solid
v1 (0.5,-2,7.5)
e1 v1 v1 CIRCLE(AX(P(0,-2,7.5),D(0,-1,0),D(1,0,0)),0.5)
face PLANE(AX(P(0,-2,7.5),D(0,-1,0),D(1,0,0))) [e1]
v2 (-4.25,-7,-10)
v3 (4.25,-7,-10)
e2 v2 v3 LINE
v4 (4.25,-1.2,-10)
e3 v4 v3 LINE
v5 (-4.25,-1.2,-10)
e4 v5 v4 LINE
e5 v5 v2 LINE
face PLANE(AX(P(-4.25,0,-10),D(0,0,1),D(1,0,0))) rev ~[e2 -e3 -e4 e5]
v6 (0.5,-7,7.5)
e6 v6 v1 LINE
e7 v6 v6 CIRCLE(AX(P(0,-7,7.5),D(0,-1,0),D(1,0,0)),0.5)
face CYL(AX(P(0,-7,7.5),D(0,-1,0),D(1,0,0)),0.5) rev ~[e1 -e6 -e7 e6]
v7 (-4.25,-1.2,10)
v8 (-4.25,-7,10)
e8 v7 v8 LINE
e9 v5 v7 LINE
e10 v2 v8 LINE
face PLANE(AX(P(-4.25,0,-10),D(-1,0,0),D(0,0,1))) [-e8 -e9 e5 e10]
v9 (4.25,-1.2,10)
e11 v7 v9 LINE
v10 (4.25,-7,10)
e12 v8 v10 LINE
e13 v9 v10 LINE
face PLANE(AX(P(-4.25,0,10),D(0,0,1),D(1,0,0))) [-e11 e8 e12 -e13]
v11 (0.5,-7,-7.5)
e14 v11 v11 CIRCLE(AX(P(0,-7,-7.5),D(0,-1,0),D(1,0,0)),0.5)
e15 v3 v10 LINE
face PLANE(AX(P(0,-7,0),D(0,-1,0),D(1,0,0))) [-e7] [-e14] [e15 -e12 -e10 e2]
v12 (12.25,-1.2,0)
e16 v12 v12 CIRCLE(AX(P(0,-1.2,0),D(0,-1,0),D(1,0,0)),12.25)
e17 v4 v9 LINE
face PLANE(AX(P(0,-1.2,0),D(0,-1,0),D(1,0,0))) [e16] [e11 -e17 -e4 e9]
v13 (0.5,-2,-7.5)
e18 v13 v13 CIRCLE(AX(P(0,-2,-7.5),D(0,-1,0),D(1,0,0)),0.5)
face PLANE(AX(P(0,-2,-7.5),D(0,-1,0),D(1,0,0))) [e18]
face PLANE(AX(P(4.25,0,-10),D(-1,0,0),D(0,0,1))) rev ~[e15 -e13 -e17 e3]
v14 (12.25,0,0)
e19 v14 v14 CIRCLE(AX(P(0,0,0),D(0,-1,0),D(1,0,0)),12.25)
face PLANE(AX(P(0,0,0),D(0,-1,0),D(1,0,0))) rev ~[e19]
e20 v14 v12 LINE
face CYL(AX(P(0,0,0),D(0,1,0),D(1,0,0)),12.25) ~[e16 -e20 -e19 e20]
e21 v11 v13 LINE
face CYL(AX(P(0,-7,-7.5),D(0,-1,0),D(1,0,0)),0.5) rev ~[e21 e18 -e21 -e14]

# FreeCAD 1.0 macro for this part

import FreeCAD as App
import Part
import Sketcher
from FreeCAD import Vector


def add_polygon(sketch, points):
    """Adds a closed chain of lines whose ends are joined by coincident constraints."""
    first, n = sketch.GeometryCount, len(points)
    for a, b in zip(points, points[1:] + points[:1]):
        sketch.addGeometry(Part.LineSegment(App.Vector(*a, 0), App.Vector(*b, 0)), False)
    for i in range(n):
        sketch.addConstraint(Sketcher.Constraint("Coincident", first + i, 2, first + (i + 1) % n, 1))

doc = App.newDocument("Part")
params = doc.addObject("Spreadsheet::Sheet", "Params")
for row, (alias, value) in enumerate([
    ("sketch1_diameter", "24.5 mm"),
    ("sketch1_height", "20 mm"),
    ("sketch1_width", "8.5 mm"),
    ("pad1_length", "1.2 mm"),
    ("sketch2_height", "20 mm"),
    ("sketch2_width", "8.5 mm"),
    ("pad2_length", "7 mm"),
    ("sketch3_diameter", "1 mm"),
    ("pocket1_length", "5 mm"),
], start=1):
    params.set(f"A{row}", alias)
    params.set(f"B{row}", "=" + value)
    params.setAlias(f"B{row}", alias)

body = doc.addObject("PartDesign::Body", "Body")

sketch1 = body.newObject("Sketcher::SketchObject", "Sketch")
sketch1.AttachmentSupport = (doc.getObject("XZ_Plane"), [""])
sketch1.MapMode = "FlatFace"
sketch1.addGeometry(Part.Circle(Vector(0, 0, 0), Vector(0, 0, 1), 12), False)
add_polygon(sketch1, [(4, -10), (-4, -10), (-4, 10), (4, 10)])
sketch1.addConstraint([
    Sketcher.Constraint("Horizontal", 1),
    Sketcher.Constraint("Vertical", 2),
    Sketcher.Constraint("Horizontal", 3),
    Sketcher.Constraint("Vertical", 4),
    Sketcher.Constraint("Coincident", 0, 3, -1, 1),
    Sketcher.Constraint("Symmetric", 1, 2, 3, 2, -1, 1),
    Sketcher.Constraint("Diameter", 0, 24.5),
    Sketcher.Constraint("DistanceY", 2, 1, 2, 2, 20.0),
    Sketcher.Constraint("DistanceX", 1, 2, 1, 1, 8.5),
])
sketch1.setExpression("Constraints[10]", "Params.sketch1_diameter")
sketch1.setExpression("Constraints[11]", "Params.sketch1_height")
sketch1.setExpression("Constraints[12]", "Params.sketch1_width")
pad1 = body.newObject("PartDesign::Pad", "Pad")
pad1.Profile = sketch1
pad1.setExpression("Length", "Params.pad1_length")

sketch2 = body.newObject("Sketcher::SketchObject", "Sketch001")
sketch2.AttachmentSupport = (doc.getObject("XZ_Plane"), [""])
sketch2.MapMode = "FlatFace"
add_polygon(sketch2, [(-4, 10), (-4, -10), (4, -10), (4, 10)])
sketch2.addConstraint([
    Sketcher.Constraint("Vertical", 0),
    Sketcher.Constraint("Horizontal", 1),
    Sketcher.Constraint("Vertical", 2),
    Sketcher.Constraint("Horizontal", 3),
    Sketcher.Constraint("Symmetric", 0, 2, 2, 2, -1, 1),
    Sketcher.Constraint("DistanceY", 0, 2, 0, 1, 20.0),
    Sketcher.Constraint("DistanceX", 1, 1, 1, 2, 8.5),
])
sketch2.setExpression("Constraints[9]", "Params.sketch2_height")
sketch2.setExpression("Constraints[10]", "Params.sketch2_width")
pad2 = body.newObject("PartDesign::Pad", "Pad001")
pad2.Profile = sketch2
pad2.setExpression("Length", "Params.pad2_length")

sketch3 = body.newObject("Sketcher::SketchObject", "Sketch002")
sketch3.AttachmentSupport = (doc.getObject("XZ_Plane"), [""])
sketch3.MapMode = "FlatFace"
sketch3.AttachmentOffset = App.Placement(Vector(0, 0, 7), App.Rotation())
sketch3.addGeometry([
    Part.Circle(Vector(0, -7.5, 0), Vector(0, 0, 1), 0.5),
    Part.Circle(Vector(0, 7.5, 0), Vector(0, 0, 1), 0.5),
], False)
sketch3.addConstraint([
    Sketcher.Constraint("Equal", 0, 1),
    Sketcher.Constraint("Symmetric", 0, 3, 1, 3, -1, 1),
    Sketcher.Constraint("PointOnObject", 0, 3, -2),
    Sketcher.Constraint("Diameter", 0, 1.0),
    Sketcher.Constraint("DistanceY", 0, 3, 1, 3, 15.0),
])
sketch3.setExpression("Constraints[3]", "Params.sketch3_diameter")
pocket1 = body.newObject("PartDesign::Pocket", "Pocket")
pocket1.Profile = sketch3
pocket1.setExpression("Length", "Params.pocket1_length")

doc.recompute()
